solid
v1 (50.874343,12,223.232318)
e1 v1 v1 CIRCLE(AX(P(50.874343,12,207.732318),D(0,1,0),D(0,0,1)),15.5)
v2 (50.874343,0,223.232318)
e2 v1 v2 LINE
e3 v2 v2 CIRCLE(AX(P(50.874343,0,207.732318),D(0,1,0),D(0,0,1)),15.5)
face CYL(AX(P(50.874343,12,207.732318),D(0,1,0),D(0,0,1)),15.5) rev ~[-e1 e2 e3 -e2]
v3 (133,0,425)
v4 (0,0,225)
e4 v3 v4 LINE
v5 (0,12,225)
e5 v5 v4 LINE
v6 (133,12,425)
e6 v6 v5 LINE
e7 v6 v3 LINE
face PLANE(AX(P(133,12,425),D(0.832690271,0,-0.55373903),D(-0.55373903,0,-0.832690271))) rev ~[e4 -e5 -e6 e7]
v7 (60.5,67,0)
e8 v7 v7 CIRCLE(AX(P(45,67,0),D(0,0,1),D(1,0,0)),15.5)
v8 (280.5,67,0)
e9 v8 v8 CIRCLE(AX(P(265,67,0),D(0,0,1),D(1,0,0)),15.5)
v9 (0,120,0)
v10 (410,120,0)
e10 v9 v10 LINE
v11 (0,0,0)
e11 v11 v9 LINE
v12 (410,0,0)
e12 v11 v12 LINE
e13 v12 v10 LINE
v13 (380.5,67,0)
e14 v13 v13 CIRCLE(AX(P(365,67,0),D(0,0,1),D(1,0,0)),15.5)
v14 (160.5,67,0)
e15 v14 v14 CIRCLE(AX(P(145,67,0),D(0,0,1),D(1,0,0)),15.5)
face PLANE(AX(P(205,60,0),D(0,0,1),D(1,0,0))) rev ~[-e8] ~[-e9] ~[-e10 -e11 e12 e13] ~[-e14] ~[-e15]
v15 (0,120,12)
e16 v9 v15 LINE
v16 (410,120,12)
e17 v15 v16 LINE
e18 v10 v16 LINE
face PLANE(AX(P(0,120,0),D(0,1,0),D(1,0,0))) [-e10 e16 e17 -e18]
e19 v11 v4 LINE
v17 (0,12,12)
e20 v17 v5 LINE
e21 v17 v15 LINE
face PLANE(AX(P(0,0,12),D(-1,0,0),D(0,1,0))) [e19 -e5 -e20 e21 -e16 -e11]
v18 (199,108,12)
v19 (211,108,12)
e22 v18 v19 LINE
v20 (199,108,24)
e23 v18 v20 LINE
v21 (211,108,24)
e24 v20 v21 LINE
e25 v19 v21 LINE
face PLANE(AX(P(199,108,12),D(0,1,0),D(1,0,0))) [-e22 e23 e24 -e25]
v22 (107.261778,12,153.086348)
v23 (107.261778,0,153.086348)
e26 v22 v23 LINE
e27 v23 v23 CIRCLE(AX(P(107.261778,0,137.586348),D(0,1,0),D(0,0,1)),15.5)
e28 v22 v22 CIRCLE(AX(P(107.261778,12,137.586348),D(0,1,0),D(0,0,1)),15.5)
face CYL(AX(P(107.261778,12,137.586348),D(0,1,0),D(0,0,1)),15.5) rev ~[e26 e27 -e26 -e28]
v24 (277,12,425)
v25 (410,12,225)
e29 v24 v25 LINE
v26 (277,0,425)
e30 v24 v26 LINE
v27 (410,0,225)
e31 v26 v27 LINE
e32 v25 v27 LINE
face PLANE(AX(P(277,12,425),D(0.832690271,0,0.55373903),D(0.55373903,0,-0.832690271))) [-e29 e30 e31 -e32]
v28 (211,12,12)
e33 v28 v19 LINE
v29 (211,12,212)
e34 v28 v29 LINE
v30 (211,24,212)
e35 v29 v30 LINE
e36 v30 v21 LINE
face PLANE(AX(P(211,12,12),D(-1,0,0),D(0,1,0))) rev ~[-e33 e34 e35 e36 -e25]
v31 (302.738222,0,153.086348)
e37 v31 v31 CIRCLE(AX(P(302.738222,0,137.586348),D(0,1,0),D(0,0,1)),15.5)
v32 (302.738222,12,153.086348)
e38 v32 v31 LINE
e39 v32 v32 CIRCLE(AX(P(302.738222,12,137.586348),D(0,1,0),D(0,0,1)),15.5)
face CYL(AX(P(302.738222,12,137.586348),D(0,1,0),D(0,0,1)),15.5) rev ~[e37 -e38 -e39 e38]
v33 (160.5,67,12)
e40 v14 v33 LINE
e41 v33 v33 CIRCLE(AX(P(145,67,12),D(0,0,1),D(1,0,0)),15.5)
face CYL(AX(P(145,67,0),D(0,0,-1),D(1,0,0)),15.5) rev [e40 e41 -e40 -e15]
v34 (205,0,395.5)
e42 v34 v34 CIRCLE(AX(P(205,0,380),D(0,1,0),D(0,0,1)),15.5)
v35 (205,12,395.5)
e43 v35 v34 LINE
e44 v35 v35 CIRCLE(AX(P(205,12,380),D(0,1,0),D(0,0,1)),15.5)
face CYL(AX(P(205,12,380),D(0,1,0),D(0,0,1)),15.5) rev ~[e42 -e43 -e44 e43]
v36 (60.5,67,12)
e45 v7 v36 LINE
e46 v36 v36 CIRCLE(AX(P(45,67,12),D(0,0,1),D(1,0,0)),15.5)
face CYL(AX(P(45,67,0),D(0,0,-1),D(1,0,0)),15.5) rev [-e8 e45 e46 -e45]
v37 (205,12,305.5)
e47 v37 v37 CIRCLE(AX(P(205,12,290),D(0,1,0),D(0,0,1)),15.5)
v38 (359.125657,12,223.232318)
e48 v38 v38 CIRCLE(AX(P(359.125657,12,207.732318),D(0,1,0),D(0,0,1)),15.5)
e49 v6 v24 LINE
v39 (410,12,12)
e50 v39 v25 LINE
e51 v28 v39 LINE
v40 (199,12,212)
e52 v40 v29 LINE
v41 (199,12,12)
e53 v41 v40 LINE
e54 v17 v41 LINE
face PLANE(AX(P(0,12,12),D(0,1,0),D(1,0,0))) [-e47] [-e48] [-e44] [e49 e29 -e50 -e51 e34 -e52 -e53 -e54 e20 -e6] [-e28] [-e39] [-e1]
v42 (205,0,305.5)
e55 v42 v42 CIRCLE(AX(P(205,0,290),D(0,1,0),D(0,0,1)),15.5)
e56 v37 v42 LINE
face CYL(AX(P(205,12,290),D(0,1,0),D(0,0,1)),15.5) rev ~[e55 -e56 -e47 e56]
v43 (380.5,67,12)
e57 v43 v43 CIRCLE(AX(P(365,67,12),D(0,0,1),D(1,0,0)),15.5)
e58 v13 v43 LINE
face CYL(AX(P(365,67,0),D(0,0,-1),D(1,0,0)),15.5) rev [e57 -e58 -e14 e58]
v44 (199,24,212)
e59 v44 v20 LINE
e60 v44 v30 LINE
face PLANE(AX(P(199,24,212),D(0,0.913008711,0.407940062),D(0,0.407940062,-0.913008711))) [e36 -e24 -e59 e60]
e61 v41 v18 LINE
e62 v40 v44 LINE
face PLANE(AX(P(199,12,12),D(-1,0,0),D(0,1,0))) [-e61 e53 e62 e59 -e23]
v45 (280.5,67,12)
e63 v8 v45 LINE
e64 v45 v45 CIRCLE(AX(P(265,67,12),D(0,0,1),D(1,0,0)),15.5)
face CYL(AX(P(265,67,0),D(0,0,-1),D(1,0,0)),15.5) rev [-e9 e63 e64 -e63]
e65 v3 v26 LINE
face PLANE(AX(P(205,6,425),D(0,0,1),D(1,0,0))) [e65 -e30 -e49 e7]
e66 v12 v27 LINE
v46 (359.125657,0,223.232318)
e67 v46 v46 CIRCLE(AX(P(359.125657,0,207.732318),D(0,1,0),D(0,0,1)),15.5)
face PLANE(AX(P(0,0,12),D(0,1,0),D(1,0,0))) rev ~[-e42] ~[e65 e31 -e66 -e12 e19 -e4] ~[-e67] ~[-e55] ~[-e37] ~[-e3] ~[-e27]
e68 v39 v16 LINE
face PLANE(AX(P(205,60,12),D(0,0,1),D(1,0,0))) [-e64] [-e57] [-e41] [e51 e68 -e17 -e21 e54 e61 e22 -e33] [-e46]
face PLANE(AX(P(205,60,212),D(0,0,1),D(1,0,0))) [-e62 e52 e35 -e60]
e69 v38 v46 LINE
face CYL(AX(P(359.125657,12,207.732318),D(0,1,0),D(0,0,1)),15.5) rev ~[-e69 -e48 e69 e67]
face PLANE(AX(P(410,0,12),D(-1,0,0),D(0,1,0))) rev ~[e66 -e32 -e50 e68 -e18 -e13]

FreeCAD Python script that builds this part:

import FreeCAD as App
import Part
import Sketcher
from FreeCAD import Vector
Q = App.Units.Quantity

doc = App.newDocument("Part")
body = doc.addObject("PartDesign::Body", "Body")

sketch1 = doc.addObject("Sketcher::SketchObject", "Sketch")
body.addObject(sketch1)
sketch1.AttachmentSupport = (doc.XY_Plane, [""])
sketch1.MapMode = "FlatFace"
sketch1.addGeometry(Part.LineSegment(Vector(0, 120, 0), Vector(0, 0, 0)), False)
sketch1.addGeometry(Part.LineSegment(Vector(0, 0, 0), Vector(410, 0, 0)), False)
sketch1.addGeometry(Part.LineSegment(Vector(410, 0, 0), Vector(410, 120, 0)), False)
sketch1.addGeometry(Part.LineSegment(Vector(410, 120, 0), Vector(0, 120, 0)), False)
sketch1.addGeometry(Part.Circle(Vector(45, 67, 0), Vector(0, 0, 1), 16), False)
sketch1.addGeometry(Part.Circle(Vector(145, 67, 0), Vector(0, 0, 1), 16), False)
sketch1.addGeometry(Part.Circle(Vector(265, 67, 0), Vector(0, 0, 1), 16), False)
sketch1.addGeometry(Part.Circle(Vector(365, 67, 0), Vector(0, 0, 1), 16), False)
sketch1.addConstraint(Sketcher.Constraint("Coincident", 0, 2, 1, 1))
sketch1.addConstraint(Sketcher.Constraint("Coincident", 1, 2, 2, 1))
sketch1.addConstraint(Sketcher.Constraint("Coincident", 2, 2, 3, 1))
sketch1.addConstraint(Sketcher.Constraint("Coincident", 3, 2, 0, 1))
sketch1.addConstraint(Sketcher.Constraint("Vertical", 0))
sketch1.addConstraint(Sketcher.Constraint("Horizontal", 1))
sketch1.addConstraint(Sketcher.Constraint("Vertical", 2))
sketch1.addConstraint(Sketcher.Constraint("Horizontal", 3))
sketch1.addConstraint(Sketcher.Constraint("Coincident", 0, 2, -1, 1))
sketch1.addConstraint(Sketcher.Constraint("Equal", 4, 5))
sketch1.addConstraint(Sketcher.Constraint("Equal", 5, 6))
sketch1.addConstraint(Sketcher.Constraint("Equal", 6, 7))
sketch1.addConstraint(Sketcher.Constraint("Horizontal", 4, 3, 5, 3))
sketch1.addConstraint(Sketcher.Constraint("Horizontal", 5, 3, 6, 3))
sketch1.addConstraint(Sketcher.Constraint("Horizontal", 6, 3, 7, 3))
sketch1.addConstraint(Sketcher.Constraint("Diameter", 4, Q("31 mm")))
sketch1.addConstraint(Sketcher.Constraint("DistanceX", 1, 1, 1, 2, Q("410 mm")))
sketch1.addConstraint(Sketcher.Constraint("DistanceY", 0, 2, 0, 1, Q("120 mm")))
sketch1.addConstraint(Sketcher.Constraint("DistanceX", -1, 1, 4, 3, Q("45 mm")))
sketch1.addConstraint(Sketcher.Constraint("DistanceY", -1, 1, 4, 3, Q("67 mm")))
sketch1.addConstraint(Sketcher.Constraint("DistanceX", -1, 1, 5, 3, Q("145 mm")))
sketch1.addConstraint(Sketcher.Constraint("DistanceX", -1, 1, 6, 3, Q("265 mm")))
sketch1.addConstraint(Sketcher.Constraint("DistanceX", -1, 1, 7, 3, Q("365 mm")))
pad1 = doc.addObject("PartDesign::Pad", "Pad")
body.addObject(pad1)
pad1.Profile = sketch1
pad1.Length = 12

sketch2 = doc.addObject("Sketcher::SketchObject", "Sketch001")
body.addObject(sketch2)
sketch2.AttachmentSupport = (doc.XY_Plane, [""])
sketch2.MapMode = "FlatFace"
sketch2.AttachmentOffset = App.Placement(Vector(0, 0, 12), App.Rotation())
sketch2.addGeometry(Part.LineSegment(Vector(0, 12, 0), Vector(0, 0, 0)), False)
sketch2.addGeometry(Part.LineSegment(Vector(0, 0, 0), Vector(410, 0, 0)), False)
sketch2.addGeometry(Part.LineSegment(Vector(410, 0, 0), Vector(410, 12, 0)), False)
sketch2.addGeometry(Part.LineSegment(Vector(410, 12, 0), Vector(0, 12, 0)), False)
sketch2.addConstraint(Sketcher.Constraint("Coincident", 0, 2, 1, 1))
sketch2.addConstraint(Sketcher.Constraint("Coincident", 1, 2, 2, 1))
sketch2.addConstraint(Sketcher.Constraint("Coincident", 2, 2, 3, 1))
sketch2.addConstraint(Sketcher.Constraint("Coincident", 3, 2, 0, 1))
sketch2.addConstraint(Sketcher.Constraint("Vertical", 0))
sketch2.addConstraint(Sketcher.Constraint("Horizontal", 1))
sketch2.addConstraint(Sketcher.Constraint("Vertical", 2))
sketch2.addConstraint(Sketcher.Constraint("Horizontal", 3))
sketch2.addConstraint(Sketcher.Constraint("Coincident", 0, 2, -1, 1))
sketch2.addConstraint(Sketcher.Constraint("DistanceX", 1, 1, 1, 2, Q("410 mm")))
sketch2.addConstraint(Sketcher.Constraint("DistanceY", 0, 2, 0, 1, Q("12 mm")))
pad2 = doc.addObject("PartDesign::Pad", "Pad001")
body.addObject(pad2)
pad2.Profile = sketch2
pad2.Length = 413

sketch3 = doc.addObject("Sketcher::SketchObject", "Sketch002")
body.addObject(sketch3)
sketch3.AttachmentSupport = (doc.XZ_Plane, [""])
sketch3.MapMode = "FlatFace"
sketch3.AttachmentOffset = App.Placement(Vector(0, 0, -12), App.Rotation())
sketch3.addGeometry(Part.Circle(Vector(303, 138, 0), Vector(0, 0, 1), 16), False)
sketch3.addGeometry(Part.Circle(Vector(359, 208, 0), Vector(0, 0, 1), 16), False)
sketch3.addGeometry(Part.Circle(Vector(107, 138, 0), Vector(0, 0, 1), 16), False)
sketch3.addGeometry(Part.Circle(Vector(51, 208, 0), Vector(0, 0, 1), 16), False)
sketch3.addGeometry(Part.Circle(Vector(205, 380, 0), Vector(0, 0, 1), 16), False)
sketch3.addGeometry(Part.Circle(Vector(205, 290, 0), Vector(0, 0, 1), 16), False)
sketch3.addGeometry(Part.LineSegment(Vector(0, 425, 0), Vector(133, 425, 0)), False)
sketch3.addGeometry(Part.LineSegment(Vector(133, 425, 0), Vector(0, 225, 0)), False)
sketch3.addGeometry(Part.LineSegment(Vector(0, 225, 0), Vector(0, 425, 0)), False)
sketch3.addGeometry(Part.LineSegment(Vector(277, 425, 0), Vector(410, 425, 0)), False)
sketch3.addGeometry(Part.LineSegment(Vector(410, 425, 0), Vector(410, 225, 0)), False)
sketch3.addGeometry(Part.LineSegment(Vector(410, 225, 0), Vector(277, 425, 0)), False)
sketch3.addConstraint(Sketcher.Constraint("Coincident", 6, 2, 7, 1))
sketch3.addConstraint(Sketcher.Constraint("Coincident", 7, 2, 8, 1))
sketch3.addConstraint(Sketcher.Constraint("Coincident", 8, 2, 6, 1))
sketch3.addConstraint(Sketcher.Constraint("Coincident", 9, 2, 10, 1))
sketch3.addConstraint(Sketcher.Constraint("Coincident", 10, 2, 11, 1))
sketch3.addConstraint(Sketcher.Constraint("Coincident", 11, 2, 9, 1))
sketch3.addConstraint(Sketcher.Constraint("Horizontal", 6))
sketch3.addConstraint(Sketcher.Constraint("Vertical", 8))
sketch3.addConstraint(Sketcher.Constraint("Horizontal", 9))
sketch3.addConstraint(Sketcher.Constraint("Vertical", 10))
sketch3.addConstraint(Sketcher.Constraint("Equal", 0, 1))
sketch3.addConstraint(Sketcher.Constraint("Equal", 1, 2))
sketch3.addConstraint(Sketcher.Constraint("Equal", 2, 3))
sketch3.addConstraint(Sketcher.Constraint("Equal", 3, 4))
sketch3.addConstraint(Sketcher.Constraint("Equal", 4, 5))
sketch3.addConstraint(Sketcher.Constraint("PointOnObject", 7, 2, -2))
sketch3.addConstraint(Sketcher.Constraint("Horizontal", 0, 3, 2, 3))
sketch3.addConstraint(Sketcher.Constraint("Horizontal", 1, 3, 3, 3))
sketch3.addConstraint(Sketcher.Constraint("Horizontal", 8, 2, 9, 2))
sketch3.addConstraint(Sketcher.Constraint("Horizontal", 7, 2, 10, 2))
sketch3.addConstraint(Sketcher.Constraint("Vertical", 4, 3, 5, 3))
sketch3.addConstraint(Sketcher.Constraint("Equal", 6, 9))
sketch3.addConstraint(Sketcher.Constraint("Diameter", 0, Q("31 mm")))
sketch3.addConstraint(Sketcher.Constraint("DistanceX", 6, 1, 6, 2, Q("133 mm")))
sketch3.addConstraint(Sketcher.Constraint("DistanceY", 8, 1, 8, 2, Q("200 mm")))
sketch3.addConstraint(Sketcher.Constraint("DistanceX", -1, 1, 4, 3, Q("205 mm")))
sketch3.addConstraint(Sketcher.Constraint("DistanceY", -1, 1, 4, 3, Q("380 mm")))
sketch3.addConstraint(Sketcher.Constraint("DistanceY", -1, 1, 5, 3, Q("290 mm")))
sketch3.addConstraint(Sketcher.Constraint("DistanceY", -1, 1, 6, 2, Q("425 mm")))
sketch3.addConstraint(Sketcher.Constraint("DistanceX", -1, 1, 9, 2, Q("410 mm")))
sketch3.addConstraint(Sketcher.Constraint("DistanceX", -1, 1, 0, 3, Q("302.738222 mm")))
sketch3.addConstraint(Sketcher.Constraint("DistanceX", -1, 1, 2, 3, Q("107.261778 mm")))
sketch3.addConstraint(Sketcher.Constraint("DistanceY", 0, 3, 1, 3, Q("70.14597 mm")))
sketch3.addConstraint(Sketcher.Constraint("DistanceX", 2, 3, 1, 3, Q("251.863879 mm")))
sketch3.addConstraint(Sketcher.Constraint("DistanceX", 3, 3, 0, 3, Q("251.863879 mm")))
sketch3.addConstraint(Sketcher.Constraint("DistanceY", -1, 1, 0, 3, Q("137.586348 mm")))
pocket1 = doc.addObject("PartDesign::Pocket", "Pocket")
body.addObject(pocket1)
pocket1.Profile = sketch3
pocket1.Length = 413
pocket1.Reversed = True

sketch4 = doc.addObject("Sketcher::SketchObject", "Sketch003")
body.addObject(sketch4)
sketch4.AttachmentSupport = (doc.XY_Plane, [""])
sketch4.MapMode = "FlatFace"
sketch4.AttachmentOffset = App.Placement(Vector(0, 0, 12), App.Rotation())
sketch4.addGeometry(Part.LineSegment(Vector(199, 108, 0), Vector(199, 12, 0)), False)
sketch4.addGeometry(Part.LineSegment(Vector(199, 12, 0), Vector(211, 12, 0)), False)
sketch4.addGeometry(Part.LineSegment(Vector(211, 12, 0), Vector(211, 108, 0)), False)
sketch4.addGeometry(Part.LineSegment(Vector(211, 108, 0), Vector(199, 108, 0)), False)
sketch4.addConstraint(Sketcher.Constraint("Coincident", 0, 2, 1, 1))
sketch4.addConstraint(Sketcher.Constraint("Coincident", 1, 2, 2, 1))
sketch4.addConstraint(Sketcher.Constraint("Coincident", 2, 2, 3, 1))
sketch4.addConstraint(Sketcher.Constraint("Coincident", 3, 2, 0, 1))
sketch4.addConstraint(Sketcher.Constraint("Vertical", 0))
sketch4.addConstraint(Sketcher.Constraint("Horizontal", 1))
sketch4.addConstraint(Sketcher.Constraint("Vertical", 2))
sketch4.addConstraint(Sketcher.Constraint("Horizontal", 3))
sketch4.addConstraint(Sketcher.Constraint("DistanceX", 1, 1, 1, 2, Q("12 mm")))
sketch4.addConstraint(Sketcher.Constraint("DistanceY", 0, 2, 0, 1, Q("96 mm")))
sketch4.addConstraint(Sketcher.Constraint("DistanceX", -1, 1, 0, 2, Q("199 mm")))
sketch4.addConstraint(Sketcher.Constraint("DistanceY", -1, 1, 0, 2, Q("12 mm")))
pad3 = doc.addObject("PartDesign::Pad", "Pad002")
body.addObject(pad3)
pad3.Profile = sketch4
pad3.Length = 200

sketch5 = doc.addObject("Sketcher::SketchObject", "Sketch004")
body.addObject(sketch5)
sketch5.AttachmentSupport = (doc.YZ_Plane, [""])
sketch5.MapMode = "FlatFace"
sketch5.AttachmentOffset = App.Placement(Vector(0, 0, 199), App.Rotation())
sketch5.addGeometry(Part.LineSegment(Vector(24, 212, 0), Vector(108, 212, 0)), False)
sketch5.addGeometry(Part.LineSegment(Vector(108, 212, 0), Vector(108, 24, 0)), False)
sketch5.addGeometry(Part.LineSegment(Vector(108, 24, 0), Vector(24, 212, 0)), False)
sketch5.addConstraint(Sketcher.Constraint("Coincident", 0, 2, 1, 1))
sketch5.addConstraint(Sketcher.Constraint("Coincident", 1, 2, 2, 1))
sketch5.addConstraint(Sketcher.Constraint("Coincident", 2, 2, 0, 1))
sketch5.addConstraint(Sketcher.Constraint("Horizontal", 0))
sketch5.addConstraint(Sketcher.Constraint("Vertical", 1))
sketch5.addConstraint(Sketcher.Constraint("DistanceX", 0, 1, 0, 2, Q("84 mm")))
sketch5.addConstraint(Sketcher.Constraint("DistanceY", 1, 2, 1, 1, Q("188 mm")))
sketch5.addConstraint(Sketcher.Constraint("DistanceX", -1, 1, 0, 2, Q("108 mm")))
sketch5.addConstraint(Sketcher.Constraint("DistanceY", -1, 1, 0, 2, Q("212 mm")))
pocket2 = doc.addObject("PartDesign::Pocket", "Pocket001")
body.addObject(pocket2)
pocket2.Profile = sketch5
pocket2.Length = 200
pocket2.Reversed = True

doc.recompute()
